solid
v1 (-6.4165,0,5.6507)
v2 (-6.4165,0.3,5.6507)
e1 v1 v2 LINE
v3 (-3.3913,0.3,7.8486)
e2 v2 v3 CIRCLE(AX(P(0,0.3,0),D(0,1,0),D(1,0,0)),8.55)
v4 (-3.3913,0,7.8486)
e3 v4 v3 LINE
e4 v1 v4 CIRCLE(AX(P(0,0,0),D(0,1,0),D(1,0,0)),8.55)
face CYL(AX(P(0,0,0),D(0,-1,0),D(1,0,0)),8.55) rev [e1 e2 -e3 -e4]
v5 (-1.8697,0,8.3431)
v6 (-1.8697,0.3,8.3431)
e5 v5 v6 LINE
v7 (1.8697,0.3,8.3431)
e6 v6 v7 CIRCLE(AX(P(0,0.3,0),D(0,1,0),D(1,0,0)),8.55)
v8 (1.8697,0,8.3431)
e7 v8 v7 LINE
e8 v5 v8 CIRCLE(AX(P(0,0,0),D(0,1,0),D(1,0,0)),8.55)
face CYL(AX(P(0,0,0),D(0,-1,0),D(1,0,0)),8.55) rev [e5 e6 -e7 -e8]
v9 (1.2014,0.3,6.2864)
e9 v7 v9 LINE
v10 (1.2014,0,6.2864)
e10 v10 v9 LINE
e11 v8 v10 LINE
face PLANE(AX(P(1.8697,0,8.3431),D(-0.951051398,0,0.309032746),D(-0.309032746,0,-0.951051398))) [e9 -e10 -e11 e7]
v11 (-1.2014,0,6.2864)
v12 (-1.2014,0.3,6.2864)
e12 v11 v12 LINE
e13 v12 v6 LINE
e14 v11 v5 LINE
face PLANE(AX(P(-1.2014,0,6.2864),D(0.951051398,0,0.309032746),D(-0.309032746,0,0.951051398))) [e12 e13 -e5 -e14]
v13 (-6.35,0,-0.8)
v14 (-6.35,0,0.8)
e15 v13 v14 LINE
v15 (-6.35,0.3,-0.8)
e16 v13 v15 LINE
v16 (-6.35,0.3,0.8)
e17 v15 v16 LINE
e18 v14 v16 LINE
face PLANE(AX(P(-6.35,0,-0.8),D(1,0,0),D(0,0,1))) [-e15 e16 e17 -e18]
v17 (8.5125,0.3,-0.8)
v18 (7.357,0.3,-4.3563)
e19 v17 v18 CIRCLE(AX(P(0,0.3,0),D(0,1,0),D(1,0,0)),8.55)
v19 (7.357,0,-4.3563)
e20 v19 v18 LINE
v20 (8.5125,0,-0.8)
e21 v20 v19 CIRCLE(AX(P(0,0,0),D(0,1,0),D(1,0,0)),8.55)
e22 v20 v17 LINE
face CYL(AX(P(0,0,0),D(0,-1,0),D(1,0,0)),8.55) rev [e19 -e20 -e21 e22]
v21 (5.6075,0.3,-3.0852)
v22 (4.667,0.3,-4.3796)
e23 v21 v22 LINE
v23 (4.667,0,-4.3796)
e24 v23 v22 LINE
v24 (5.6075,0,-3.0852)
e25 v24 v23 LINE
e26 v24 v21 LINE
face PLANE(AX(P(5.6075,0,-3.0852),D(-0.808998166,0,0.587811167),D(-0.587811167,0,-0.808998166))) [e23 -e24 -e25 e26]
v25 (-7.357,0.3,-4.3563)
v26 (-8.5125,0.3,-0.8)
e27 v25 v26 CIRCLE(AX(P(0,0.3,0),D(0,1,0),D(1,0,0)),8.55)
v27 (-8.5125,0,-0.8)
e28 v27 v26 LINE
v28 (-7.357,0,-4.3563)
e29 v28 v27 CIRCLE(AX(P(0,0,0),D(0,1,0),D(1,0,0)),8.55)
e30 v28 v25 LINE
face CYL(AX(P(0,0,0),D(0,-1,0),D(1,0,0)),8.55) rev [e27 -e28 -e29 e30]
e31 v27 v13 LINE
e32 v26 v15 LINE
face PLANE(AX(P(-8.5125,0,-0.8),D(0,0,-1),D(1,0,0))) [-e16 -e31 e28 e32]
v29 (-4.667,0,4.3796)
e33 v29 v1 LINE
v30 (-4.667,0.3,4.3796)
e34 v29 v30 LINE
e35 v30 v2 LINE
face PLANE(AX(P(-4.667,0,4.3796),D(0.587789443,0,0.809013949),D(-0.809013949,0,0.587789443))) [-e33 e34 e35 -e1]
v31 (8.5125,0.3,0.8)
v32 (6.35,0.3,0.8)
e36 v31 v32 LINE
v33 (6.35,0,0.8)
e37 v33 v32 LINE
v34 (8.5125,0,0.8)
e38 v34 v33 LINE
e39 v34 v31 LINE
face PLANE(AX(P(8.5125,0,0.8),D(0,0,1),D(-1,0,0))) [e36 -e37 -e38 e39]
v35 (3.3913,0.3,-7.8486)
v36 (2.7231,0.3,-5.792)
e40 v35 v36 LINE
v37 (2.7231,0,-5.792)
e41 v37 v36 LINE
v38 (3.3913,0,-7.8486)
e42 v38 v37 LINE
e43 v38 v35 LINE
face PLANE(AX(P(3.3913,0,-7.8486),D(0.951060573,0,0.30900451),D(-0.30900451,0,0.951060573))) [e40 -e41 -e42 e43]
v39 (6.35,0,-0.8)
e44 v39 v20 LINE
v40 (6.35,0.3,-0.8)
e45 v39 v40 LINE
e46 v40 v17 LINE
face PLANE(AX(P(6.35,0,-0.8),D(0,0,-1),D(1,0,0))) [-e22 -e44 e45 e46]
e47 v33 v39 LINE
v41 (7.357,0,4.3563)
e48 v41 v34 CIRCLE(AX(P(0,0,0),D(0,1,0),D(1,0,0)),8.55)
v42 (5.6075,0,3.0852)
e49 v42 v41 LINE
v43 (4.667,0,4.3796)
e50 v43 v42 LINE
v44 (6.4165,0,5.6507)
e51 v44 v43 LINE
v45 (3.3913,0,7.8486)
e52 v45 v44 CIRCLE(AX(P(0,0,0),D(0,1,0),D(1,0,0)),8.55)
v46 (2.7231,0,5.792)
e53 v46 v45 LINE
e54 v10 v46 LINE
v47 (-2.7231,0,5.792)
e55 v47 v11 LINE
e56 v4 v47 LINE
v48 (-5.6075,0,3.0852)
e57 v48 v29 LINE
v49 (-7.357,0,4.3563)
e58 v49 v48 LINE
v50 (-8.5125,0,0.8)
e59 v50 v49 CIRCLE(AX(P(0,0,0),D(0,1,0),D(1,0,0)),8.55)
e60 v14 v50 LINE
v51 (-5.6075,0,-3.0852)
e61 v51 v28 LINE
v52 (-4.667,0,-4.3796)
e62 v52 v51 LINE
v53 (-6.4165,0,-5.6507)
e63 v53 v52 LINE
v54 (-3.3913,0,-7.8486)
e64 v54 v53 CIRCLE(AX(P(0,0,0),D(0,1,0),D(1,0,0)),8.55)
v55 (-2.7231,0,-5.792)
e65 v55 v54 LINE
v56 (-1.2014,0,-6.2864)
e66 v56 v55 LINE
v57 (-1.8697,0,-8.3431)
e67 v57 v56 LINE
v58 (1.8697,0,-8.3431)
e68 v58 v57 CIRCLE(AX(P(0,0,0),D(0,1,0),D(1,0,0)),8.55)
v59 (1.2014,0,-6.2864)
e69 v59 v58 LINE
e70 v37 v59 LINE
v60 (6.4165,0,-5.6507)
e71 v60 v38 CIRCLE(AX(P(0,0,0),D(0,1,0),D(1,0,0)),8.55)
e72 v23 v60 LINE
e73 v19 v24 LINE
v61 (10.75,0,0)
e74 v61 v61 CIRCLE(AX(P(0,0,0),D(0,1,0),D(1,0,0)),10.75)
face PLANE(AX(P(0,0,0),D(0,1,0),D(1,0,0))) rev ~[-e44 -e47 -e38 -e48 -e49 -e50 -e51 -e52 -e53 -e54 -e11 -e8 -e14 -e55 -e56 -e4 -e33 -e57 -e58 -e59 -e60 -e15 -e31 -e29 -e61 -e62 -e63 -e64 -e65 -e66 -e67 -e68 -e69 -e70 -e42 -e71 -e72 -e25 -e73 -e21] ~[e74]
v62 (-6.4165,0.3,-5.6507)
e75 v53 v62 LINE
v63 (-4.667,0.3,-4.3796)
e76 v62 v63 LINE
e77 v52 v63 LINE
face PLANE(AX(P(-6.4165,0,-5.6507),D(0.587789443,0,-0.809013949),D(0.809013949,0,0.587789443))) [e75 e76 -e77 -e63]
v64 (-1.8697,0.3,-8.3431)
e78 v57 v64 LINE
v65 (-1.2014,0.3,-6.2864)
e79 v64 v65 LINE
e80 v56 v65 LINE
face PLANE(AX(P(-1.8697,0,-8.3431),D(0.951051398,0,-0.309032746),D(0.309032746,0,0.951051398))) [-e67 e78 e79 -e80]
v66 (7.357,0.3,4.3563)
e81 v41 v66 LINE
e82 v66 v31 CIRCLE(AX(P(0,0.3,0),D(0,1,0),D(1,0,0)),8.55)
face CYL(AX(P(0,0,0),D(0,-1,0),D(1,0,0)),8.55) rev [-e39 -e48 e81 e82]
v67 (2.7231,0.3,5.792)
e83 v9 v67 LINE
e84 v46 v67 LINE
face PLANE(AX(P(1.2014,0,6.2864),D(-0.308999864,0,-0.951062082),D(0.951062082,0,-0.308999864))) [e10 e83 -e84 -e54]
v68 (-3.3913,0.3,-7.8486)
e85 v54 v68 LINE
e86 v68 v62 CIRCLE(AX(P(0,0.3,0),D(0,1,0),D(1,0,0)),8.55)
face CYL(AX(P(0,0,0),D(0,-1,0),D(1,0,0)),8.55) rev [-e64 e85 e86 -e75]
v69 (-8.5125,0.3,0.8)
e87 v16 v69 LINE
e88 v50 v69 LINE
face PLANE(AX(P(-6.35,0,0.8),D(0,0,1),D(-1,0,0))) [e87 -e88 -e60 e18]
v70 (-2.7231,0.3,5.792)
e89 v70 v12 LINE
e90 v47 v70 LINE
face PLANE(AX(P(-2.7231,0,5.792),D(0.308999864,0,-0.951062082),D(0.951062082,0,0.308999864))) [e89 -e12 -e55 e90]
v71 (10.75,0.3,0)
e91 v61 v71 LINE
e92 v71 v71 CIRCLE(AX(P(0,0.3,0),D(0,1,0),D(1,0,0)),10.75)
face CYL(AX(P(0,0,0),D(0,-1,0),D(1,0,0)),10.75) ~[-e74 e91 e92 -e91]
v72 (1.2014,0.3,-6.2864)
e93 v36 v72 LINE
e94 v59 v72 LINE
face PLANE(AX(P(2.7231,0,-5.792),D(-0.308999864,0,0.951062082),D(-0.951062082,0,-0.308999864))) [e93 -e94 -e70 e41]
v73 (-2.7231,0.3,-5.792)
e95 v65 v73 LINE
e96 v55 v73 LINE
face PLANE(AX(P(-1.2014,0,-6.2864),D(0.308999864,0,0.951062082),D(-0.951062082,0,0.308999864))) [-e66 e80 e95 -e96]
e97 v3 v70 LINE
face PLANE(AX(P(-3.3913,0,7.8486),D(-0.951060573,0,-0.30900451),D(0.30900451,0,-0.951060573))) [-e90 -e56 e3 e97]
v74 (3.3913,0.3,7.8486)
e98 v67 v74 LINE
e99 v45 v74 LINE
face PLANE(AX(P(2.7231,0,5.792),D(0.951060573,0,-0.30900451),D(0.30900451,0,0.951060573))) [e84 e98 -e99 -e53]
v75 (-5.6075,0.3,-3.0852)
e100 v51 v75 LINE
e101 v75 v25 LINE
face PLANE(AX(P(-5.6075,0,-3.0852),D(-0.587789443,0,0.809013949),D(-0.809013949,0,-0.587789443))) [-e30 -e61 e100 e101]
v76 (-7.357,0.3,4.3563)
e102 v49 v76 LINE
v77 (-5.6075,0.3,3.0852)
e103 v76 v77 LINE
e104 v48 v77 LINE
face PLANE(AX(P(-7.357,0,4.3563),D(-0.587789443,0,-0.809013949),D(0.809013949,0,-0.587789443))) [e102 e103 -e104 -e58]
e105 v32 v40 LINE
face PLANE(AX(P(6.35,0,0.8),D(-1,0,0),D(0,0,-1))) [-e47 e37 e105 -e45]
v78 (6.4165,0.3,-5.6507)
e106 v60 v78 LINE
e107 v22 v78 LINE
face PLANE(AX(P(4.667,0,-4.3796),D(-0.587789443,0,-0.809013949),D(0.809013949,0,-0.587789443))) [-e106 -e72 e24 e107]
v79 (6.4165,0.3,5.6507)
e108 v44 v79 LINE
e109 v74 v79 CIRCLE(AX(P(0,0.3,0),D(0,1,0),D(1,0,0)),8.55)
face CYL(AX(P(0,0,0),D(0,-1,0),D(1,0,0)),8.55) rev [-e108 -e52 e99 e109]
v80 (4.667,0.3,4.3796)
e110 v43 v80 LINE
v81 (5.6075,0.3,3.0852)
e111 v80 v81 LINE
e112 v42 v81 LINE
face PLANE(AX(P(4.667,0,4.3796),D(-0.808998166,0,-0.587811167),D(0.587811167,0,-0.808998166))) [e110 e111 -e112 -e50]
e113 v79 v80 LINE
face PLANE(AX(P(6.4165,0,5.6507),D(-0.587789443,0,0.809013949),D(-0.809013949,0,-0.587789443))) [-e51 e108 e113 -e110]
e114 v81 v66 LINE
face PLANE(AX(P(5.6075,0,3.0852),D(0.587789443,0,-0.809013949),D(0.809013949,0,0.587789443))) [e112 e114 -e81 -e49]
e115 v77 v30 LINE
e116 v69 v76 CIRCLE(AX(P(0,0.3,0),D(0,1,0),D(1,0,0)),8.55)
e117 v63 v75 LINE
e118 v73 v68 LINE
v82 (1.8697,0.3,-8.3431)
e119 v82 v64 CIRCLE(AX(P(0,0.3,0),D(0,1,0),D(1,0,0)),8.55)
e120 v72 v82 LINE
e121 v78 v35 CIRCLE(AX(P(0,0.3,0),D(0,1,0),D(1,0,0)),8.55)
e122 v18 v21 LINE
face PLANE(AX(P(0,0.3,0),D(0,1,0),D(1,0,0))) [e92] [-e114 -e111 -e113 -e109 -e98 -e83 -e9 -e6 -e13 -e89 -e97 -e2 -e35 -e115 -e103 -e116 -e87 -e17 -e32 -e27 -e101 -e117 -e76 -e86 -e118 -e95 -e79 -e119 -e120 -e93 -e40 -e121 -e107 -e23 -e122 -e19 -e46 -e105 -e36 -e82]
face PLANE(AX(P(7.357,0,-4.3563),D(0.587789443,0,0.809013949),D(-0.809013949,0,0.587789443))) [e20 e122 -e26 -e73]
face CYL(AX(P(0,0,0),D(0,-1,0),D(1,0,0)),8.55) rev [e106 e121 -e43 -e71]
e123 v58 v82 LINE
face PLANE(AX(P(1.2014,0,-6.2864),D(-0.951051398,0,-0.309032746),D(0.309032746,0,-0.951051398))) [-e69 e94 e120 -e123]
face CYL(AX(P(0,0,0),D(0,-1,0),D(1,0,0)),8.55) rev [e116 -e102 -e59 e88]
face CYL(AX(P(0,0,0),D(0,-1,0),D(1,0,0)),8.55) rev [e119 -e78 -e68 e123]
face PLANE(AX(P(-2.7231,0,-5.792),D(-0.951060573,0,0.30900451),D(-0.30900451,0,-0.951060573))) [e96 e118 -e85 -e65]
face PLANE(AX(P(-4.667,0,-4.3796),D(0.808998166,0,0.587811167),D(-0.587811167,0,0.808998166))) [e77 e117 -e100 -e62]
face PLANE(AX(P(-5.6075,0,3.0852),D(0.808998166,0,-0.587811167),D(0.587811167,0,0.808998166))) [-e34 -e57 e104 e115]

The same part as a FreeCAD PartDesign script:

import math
import FreeCAD as App
import Part
import Sketcher

V = App.Vector
Q = App.Units.Quantity

doc = App.newDocument("Part")
body = doc.addObject("PartDesign::Body", "Body")

sketch1 = doc.addObject("Sketcher::SketchObject", "Sketch")
body.addObject(sketch1)
sketch1.AttachmentSupport = (doc.XZ_Plane, [""])
sketch1.MapMode = "FlatFace"
sketch1.addGeometry([
    Part.Circle(V(0, 0, 0), V(0, 0, 1), 10.8),
    Part.ArcOfCircle(Part.Circle(V(0, 0, 0), V(0, 0, 1), 8.6), math.radians(-31), math.radians(-5)),
    Part.LineSegment(V(8.5, -0.8, 0), V(6.3, -0.8, 0)),
    Part.LineSegment(V(6.3, -0.8, 0), V(6.3, 0.8, 0)),
    Part.LineSegment(V(6.3, 0.8, 0), V(8.5, 0.8, 0)),
    Part.ArcOfCircle(Part.Circle(V(0, 0, 0), V(0, 0, 1), 8.6), math.radians(5), math.radians(31)),
    Part.LineSegment(V(7.4, 4.4, 0), V(5.6, 3.1, 0)),
    Part.LineSegment(V(5.6, 3.1, 0), V(4.7, 4.4, 0)),
    Part.LineSegment(V(4.7, 4.4, 0), V(6.4, 5.7, 0)),
    Part.ArcOfCircle(Part.Circle(V(0, 0, 0), V(0, 0, 1), 8.6), math.radians(41), math.radians(67)),
    Part.LineSegment(V(3.4, 7.8, 0), V(2.7, 5.8, 0)),
    Part.LineSegment(V(2.7, 5.8, 0), V(1.2, 6.3, 0)),
    Part.LineSegment(V(1.2, 6.3, 0), V(1.9, 8.3, 0)),
    Part.ArcOfCircle(Part.Circle(V(0, 0, 0), V(0, 0, 1), 8.6), math.radians(77), math.radians(103)),
    Part.LineSegment(V(-1.9, 8.3, 0), V(-1.2, 6.3, 0)),
    Part.LineSegment(V(-1.2, 6.3, 0), V(-2.7, 5.8, 0)),
    Part.LineSegment(V(-2.7, 5.8, 0), V(-3.4, 7.8, 0)),
    Part.ArcOfCircle(Part.Circle(V(0, 0, 0), V(0, 0, 1), 8.6), math.radians(113), math.radians(139)),
    Part.LineSegment(V(-6.4, 5.7, 0), V(-4.7, 4.4, 0)),
    Part.LineSegment(V(-4.7, 4.4, 0), V(-5.6, 3.1, 0)),
    Part.LineSegment(V(-5.6, 3.1, 0), V(-7.4, 4.4, 0)),
    Part.ArcOfCircle(Part.Circle(V(0, 0, 0), V(0, 0, 1), 8.6), math.radians(149), math.radians(175)),
    Part.LineSegment(V(-8.5, 0.8, 0), V(-6.3, 0.8, 0)),
    Part.LineSegment(V(-6.3, 0.8, 0), V(-6.3, -0.8, 0)),
    Part.LineSegment(V(-6.3, -0.8, 0), V(-8.5, -0.8, 0)),
    Part.ArcOfCircle(Part.Circle(V(0, 0, 0), V(0, 0, 1), 8.6), math.radians(-175), math.radians(-149)),
    Part.LineSegment(V(-7.4, -4.4, 0), V(-5.6, -3.1, 0)),
    Part.LineSegment(V(-5.6, -3.1, 0), V(-4.7, -4.4, 0)),
    Part.LineSegment(V(-4.7, -4.4, 0), V(-6.4, -5.7, 0)),
    Part.ArcOfCircle(Part.Circle(V(0, 0, 0), V(0, 0, 1), 8.6), math.radians(-139), math.radians(-113)),
    Part.LineSegment(V(-3.4, -7.8, 0), V(-2.7, -5.8, 0)),
    Part.LineSegment(V(-2.7, -5.8, 0), V(-1.2, -6.3, 0)),
    Part.LineSegment(V(-1.2, -6.3, 0), V(-1.9, -8.3, 0)),
    Part.ArcOfCircle(Part.Circle(V(0, 0, 0), V(0, 0, 1), 8.6), math.radians(-103), math.radians(-77)),
    Part.LineSegment(V(1.9, -8.3, 0), V(1.2, -6.3, 0)),
    Part.LineSegment(V(1.2, -6.3, 0), V(2.7, -5.8, 0)),
    Part.LineSegment(V(2.7, -5.8, 0), V(3.4, -7.8, 0)),
    Part.ArcOfCircle(Part.Circle(V(0, 0, 0), V(0, 0, 1), 8.6), math.radians(-67), math.radians(-41)),
    Part.LineSegment(V(6.4, -5.7, 0), V(4.7, -4.4, 0)),
    Part.LineSegment(V(4.7, -4.4, 0), V(5.6, -3.1, 0)),
    Part.LineSegment(V(5.6, -3.1, 0), V(7.4, -4.4, 0)),
], False)
sketch1.addConstraint([
    Sketcher.Constraint("Coincident", 1, 2, 2, 1),
    Sketcher.Constraint("Coincident", 2, 2, 3, 1),
    Sketcher.Constraint("Coincident", 3, 2, 4, 1),
    Sketcher.Constraint("Coincident", 4, 2, 5, 1),
    Sketcher.Constraint("Coincident", 5, 2, 6, 1),
    Sketcher.Constraint("Coincident", 6, 2, 7, 1),
    Sketcher.Constraint("Coincident", 7, 2, 8, 1),
    Sketcher.Constraint("Coincident", 8, 2, 9, 1),
    Sketcher.Constraint("Coincident", 9, 2, 10, 1),
    Sketcher.Constraint("Coincident", 10, 2, 11, 1),
    Sketcher.Constraint("Coincident", 11, 2, 12, 1),
    Sketcher.Constraint("Coincident", 12, 2, 13, 1),
    Sketcher.Constraint("Coincident", 13, 2, 14, 1),
    Sketcher.Constraint("Coincident", 14, 2, 15, 1),
    Sketcher.Constraint("Coincident", 15, 2, 16, 1),
    Sketcher.Constraint("Coincident", 16, 2, 17, 1),
    Sketcher.Constraint("Coincident", 17, 2, 18, 1),
    Sketcher.Constraint("Coincident", 18, 2, 19, 1),
    Sketcher.Constraint("Coincident", 19, 2, 20, 1),
    Sketcher.Constraint("Coincident", 20, 2, 21, 1),
    Sketcher.Constraint("Coincident", 21, 2, 22, 1),
    Sketcher.Constraint("Coincident", 22, 2, 23, 1),
    Sketcher.Constraint("Coincident", 23, 2, 24, 1),
    Sketcher.Constraint("Coincident", 24, 2, 25, 1),
    Sketcher.Constraint("Coincident", 25, 2, 26, 1),
    Sketcher.Constraint("Coincident", 26, 2, 27, 1),
    Sketcher.Constraint("Coincident", 27, 2, 28, 1),
    Sketcher.Constraint("Coincident", 28, 2, 29, 1),
    Sketcher.Constraint("Coincident", 29, 2, 30, 1),
    Sketcher.Constraint("Coincident", 30, 2, 31, 1),
    Sketcher.Constraint("Coincident", 31, 2, 32, 1),
    Sketcher.Constraint("Coincident", 32, 2, 33, 1),
    Sketcher.Constraint("Coincident", 33, 2, 34, 1),
    Sketcher.Constraint("Coincident", 34, 2, 35, 1),
    Sketcher.Constraint("Coincident", 35, 2, 36, 1),
    Sketcher.Constraint("Coincident", 36, 2, 37, 1),
    Sketcher.Constraint("Coincident", 37, 2, 38, 1),
    Sketcher.Constraint("Coincident", 38, 2, 39, 1),
    Sketcher.Constraint("Coincident", 39, 2, 40, 1),
    Sketcher.Constraint("Coincident", 40, 2, 1, 1),
    Sketcher.Constraint("Horizontal", 2),
    Sketcher.Constraint("Vertical", 3),
    Sketcher.Constraint("Horizontal", 4),
    Sketcher.Constraint("Horizontal", 22),
    Sketcher.Constraint("Vertical", 23),
    Sketcher.Constraint("Horizontal", 24),
    Sketcher.Constraint("Coincident", 0, 3, -1, 1),
    Sketcher.Constraint("Coincident", 1, 3, -1, 1),
    Sketcher.Constraint("Coincident", 5, 3, -1, 1),
    Sketcher.Constraint("Coincident", 9, 3, -1, 1),
    Sketcher.Constraint("Coincident", 13, 3, -1, 1),
    Sketcher.Constraint("Coincident", 17, 3, -1, 1),
    Sketcher.Constraint("Coincident", 21, 3, -1, 1),
    Sketcher.Constraint("Coincident", 25, 3, -1, 1),
    Sketcher.Constraint("Coincident", 29, 3, -1, 1),
    Sketcher.Constraint("Coincident", 33, 3, -1, 1),
    Sketcher.Constraint("Coincident", 37, 3, -1, 1),
    Sketcher.Constraint("Equal", 1, 5),
    Sketcher.Constraint("Equal", 5, 9),
    Sketcher.Constraint("Equal", 9, 13),
    Sketcher.Constraint("Equal", 13, 17),
    Sketcher.Constraint("Equal", 17, 21),
    Sketcher.Constraint("Equal", 21, 25),
    Sketcher.Constraint("Equal", 25, 29),
    Sketcher.Constraint("Equal", 29, 33),
    Sketcher.Constraint("Equal", 33, 37),
    Sketcher.Constraint("Symmetric", 2, 2, 22, 2, -1, 1),
    Sketcher.Constraint("Symmetric", 6, 2, 26, 2, -1, 1),
    Sketcher.Constraint("Symmetric", 7, 2, 27, 2, -1, 1),
    Sketcher.Constraint("Symmetric", 10, 2, 30, 2, -1, 1),
    Sketcher.Constraint("Symmetric", 11, 2, 31, 2, -1, 1),
    Sketcher.Constraint("Symmetric", 14, 2, 34, 2, -1, 1),
    Sketcher.Constraint("Symmetric", 15, 2, 35, 2, -1, 1),
    Sketcher.Constraint("Symmetric", 18, 2, 38, 2, -1, 1),
    Sketcher.Constraint("Symmetric", 19, 2, 39, 2, -1, 1),
    Sketcher.Constraint("Symmetric", 11, 2, 14, 2, -2),
    Sketcher.Constraint("Symmetric", 10, 2, 15, 2, -2),
    Sketcher.Constraint("Symmetric", 7, 2, 18, 2, -2),
    Sketcher.Constraint("Symmetric", 6, 2, 19, 2, -2),
    Sketcher.Constraint("Perpendicular", 6, 7),
    Sketcher.Constraint("Perpendicular", 7, 8),
    Sketcher.Constraint("Perpendicular", 10, 11),
    Sketcher.Constraint("Perpendicular", 11, 12),
    Sketcher.Constraint("Perpendicular", 14, 15),
    Sketcher.Constraint("Perpendicular", 15, 16),
    Sketcher.Constraint("Perpendicular", 18, 19),
    Sketcher.Constraint("Perpendicular", 19, 20),
    Sketcher.Constraint("Parallel", 8, 26),
    Sketcher.Constraint("Perpendicular", 27, 28),
    Sketcher.Constraint("Parallel", 12, 30),
    Sketcher.Constraint("Perpendicular", 31, 32),
    Sketcher.Constraint("Parallel", 16, 34),
    Sketcher.Constraint("Perpendicular", 35, 36),
    Sketcher.Constraint("Parallel", 20, 38),
    Sketcher.Constraint("Perpendicular", 39, 40),
    Sketcher.Constraint("Horizontal", 4, 2, 21, 2),
    Sketcher.Constraint("Horizontal", 2, 2, 23, 2),
    Sketcher.Constraint("Equal", 6, 8),
    Sketcher.Constraint("Equal", 8, 10),
    Sketcher.Constraint("Equal", 7, 11),
    Sketcher.Constraint("Equal", 10, 12),
    Sketcher.Constraint("Diameter", 0, 21.5),
    Sketcher.Constraint("Angle", 6, Q("-143.9997 deg")),
    Sketcher.Constraint("Angle", 10, Q("-107.9992 deg")),
    Sketcher.Constraint("DistanceY", 3, 1, 3, 2, Q("0.063 in")),
    Sketcher.Constraint("DistanceX", -1, 1, 2, 2, Q("0.25 in")),
    Sketcher.Constraint("Radius", 1, 8.55),
    Sketcher.Constraint("DistanceY", 3, 2, 5, 2, Q("0.14 in")),
    Sketcher.Constraint("DistanceY", 6, 2, 8, 2, Q("0.101 in")),
])
pad1 = doc.addObject("PartDesign::Pad", "Pad")
body.addObject(pad1)
pad1.Profile = sketch1
pad1.Length = Q("0.011811 in")
pad1.Reversed = True

doc.recompute()
